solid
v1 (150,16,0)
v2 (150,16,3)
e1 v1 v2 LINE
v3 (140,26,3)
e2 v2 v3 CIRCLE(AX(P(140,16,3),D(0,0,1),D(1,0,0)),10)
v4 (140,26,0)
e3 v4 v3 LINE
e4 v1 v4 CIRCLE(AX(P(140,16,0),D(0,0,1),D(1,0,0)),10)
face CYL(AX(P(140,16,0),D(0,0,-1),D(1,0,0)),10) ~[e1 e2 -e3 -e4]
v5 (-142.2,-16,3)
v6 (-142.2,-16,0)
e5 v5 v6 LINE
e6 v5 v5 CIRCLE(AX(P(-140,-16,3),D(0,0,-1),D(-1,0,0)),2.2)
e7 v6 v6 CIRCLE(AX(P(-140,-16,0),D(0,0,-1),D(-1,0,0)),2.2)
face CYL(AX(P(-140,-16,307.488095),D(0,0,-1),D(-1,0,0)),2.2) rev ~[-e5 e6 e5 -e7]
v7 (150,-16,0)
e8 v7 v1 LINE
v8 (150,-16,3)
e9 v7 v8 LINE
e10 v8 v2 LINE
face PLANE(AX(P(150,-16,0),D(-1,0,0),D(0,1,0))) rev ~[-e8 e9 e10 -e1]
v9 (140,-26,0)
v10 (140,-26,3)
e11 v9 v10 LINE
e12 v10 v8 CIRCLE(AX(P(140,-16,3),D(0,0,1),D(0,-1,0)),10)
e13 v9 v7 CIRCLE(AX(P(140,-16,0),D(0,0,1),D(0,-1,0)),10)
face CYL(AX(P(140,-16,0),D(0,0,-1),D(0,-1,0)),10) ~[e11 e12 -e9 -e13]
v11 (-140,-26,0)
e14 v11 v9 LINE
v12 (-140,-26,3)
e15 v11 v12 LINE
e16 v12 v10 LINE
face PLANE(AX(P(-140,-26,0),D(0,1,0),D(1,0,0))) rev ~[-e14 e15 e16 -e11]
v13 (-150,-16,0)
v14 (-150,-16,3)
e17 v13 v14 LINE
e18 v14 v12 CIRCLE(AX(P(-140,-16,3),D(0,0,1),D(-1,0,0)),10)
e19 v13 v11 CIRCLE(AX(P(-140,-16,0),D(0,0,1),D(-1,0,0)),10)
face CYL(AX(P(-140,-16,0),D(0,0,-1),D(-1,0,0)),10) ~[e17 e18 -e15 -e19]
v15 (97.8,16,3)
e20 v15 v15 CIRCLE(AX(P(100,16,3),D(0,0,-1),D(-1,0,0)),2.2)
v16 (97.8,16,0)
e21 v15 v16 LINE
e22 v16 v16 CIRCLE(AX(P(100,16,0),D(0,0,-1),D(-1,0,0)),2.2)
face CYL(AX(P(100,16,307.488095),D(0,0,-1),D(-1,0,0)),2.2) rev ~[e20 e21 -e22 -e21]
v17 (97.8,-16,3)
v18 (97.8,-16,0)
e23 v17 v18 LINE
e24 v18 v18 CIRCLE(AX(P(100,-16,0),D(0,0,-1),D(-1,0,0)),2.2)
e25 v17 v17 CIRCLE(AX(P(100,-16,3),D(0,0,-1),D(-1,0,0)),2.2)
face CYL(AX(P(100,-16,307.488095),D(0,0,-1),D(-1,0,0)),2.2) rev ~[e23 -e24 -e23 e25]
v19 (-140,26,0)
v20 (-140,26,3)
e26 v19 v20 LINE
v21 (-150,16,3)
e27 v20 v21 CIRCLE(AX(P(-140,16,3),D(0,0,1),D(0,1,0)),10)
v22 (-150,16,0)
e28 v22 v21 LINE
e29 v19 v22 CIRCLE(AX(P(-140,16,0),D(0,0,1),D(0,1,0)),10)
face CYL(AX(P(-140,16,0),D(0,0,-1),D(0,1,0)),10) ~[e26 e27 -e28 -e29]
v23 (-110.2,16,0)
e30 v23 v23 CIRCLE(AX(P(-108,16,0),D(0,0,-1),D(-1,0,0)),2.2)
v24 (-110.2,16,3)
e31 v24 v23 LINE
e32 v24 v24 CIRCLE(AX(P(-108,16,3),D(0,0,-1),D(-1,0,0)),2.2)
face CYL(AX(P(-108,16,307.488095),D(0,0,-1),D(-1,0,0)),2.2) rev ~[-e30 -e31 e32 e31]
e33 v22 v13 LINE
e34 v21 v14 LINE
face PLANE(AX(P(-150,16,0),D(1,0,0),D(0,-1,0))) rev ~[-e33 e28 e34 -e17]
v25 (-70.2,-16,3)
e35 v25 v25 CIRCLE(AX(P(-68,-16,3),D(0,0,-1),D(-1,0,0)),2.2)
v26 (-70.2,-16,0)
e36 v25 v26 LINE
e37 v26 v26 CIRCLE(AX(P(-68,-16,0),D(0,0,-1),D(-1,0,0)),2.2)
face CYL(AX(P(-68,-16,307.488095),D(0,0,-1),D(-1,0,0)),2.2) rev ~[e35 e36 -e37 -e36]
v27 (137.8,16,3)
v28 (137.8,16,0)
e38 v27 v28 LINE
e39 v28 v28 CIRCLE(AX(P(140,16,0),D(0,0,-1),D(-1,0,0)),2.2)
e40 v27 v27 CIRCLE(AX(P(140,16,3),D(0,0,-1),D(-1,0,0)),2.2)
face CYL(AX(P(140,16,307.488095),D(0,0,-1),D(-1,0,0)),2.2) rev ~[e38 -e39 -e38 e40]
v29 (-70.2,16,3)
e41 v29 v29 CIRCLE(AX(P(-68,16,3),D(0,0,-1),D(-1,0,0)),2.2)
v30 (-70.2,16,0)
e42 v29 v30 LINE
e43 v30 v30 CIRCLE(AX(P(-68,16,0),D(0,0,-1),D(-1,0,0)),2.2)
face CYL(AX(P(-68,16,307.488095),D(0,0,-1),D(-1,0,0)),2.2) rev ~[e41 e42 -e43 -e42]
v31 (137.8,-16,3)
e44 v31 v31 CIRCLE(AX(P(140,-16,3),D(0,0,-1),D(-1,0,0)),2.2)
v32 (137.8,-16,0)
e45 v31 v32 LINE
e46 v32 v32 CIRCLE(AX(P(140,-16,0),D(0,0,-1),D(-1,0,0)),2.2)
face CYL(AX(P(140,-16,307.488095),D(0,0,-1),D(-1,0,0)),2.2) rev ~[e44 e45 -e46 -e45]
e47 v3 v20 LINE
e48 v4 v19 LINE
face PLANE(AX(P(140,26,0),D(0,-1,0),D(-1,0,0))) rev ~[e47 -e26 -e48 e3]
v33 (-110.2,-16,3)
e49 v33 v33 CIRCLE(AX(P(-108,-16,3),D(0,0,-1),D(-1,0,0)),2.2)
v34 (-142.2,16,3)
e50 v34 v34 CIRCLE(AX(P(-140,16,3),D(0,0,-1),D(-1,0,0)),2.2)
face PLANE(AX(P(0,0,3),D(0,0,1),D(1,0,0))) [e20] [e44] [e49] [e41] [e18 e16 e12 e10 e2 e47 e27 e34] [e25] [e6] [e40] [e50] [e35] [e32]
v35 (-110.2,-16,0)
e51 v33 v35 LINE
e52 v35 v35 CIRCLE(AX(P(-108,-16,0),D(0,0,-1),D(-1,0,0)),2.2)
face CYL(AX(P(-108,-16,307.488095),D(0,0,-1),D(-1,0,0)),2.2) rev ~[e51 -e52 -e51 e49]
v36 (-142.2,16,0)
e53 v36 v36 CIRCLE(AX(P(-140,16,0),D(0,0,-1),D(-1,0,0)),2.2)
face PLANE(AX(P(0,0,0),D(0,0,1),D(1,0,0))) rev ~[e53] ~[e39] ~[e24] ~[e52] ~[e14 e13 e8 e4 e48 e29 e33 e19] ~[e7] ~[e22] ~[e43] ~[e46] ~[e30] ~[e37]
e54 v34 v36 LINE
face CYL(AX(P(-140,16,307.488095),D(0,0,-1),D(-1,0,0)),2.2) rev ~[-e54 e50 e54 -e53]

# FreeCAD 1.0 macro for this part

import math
import FreeCAD as App
import Part
import Sketcher

V = App.Vector

doc = App.newDocument("Part")
body = doc.addObject("PartDesign::Body", "Body")

# Sketch on XY plane
sketch1 = body.newObject("Sketcher::SketchObject", "Sketch")
sketch1.AttachmentSupport = (doc.getObject("XY_Plane"), [""])
sketch1.MapMode = "FlatFace"
sketch1.addGeometry([
    Part.LineSegment(V(-140, -26, 0), V(140, -26, 0)),  # 0
    Part.ArcOfCircle(Part.Circle(V(140, -16, 0), V(0, 0, 1), 10), math.radians(-90), math.radians(0)),  # 1
    Part.LineSegment(V(150, -16, 0), V(150, 16, 0)),  # 2
    Part.ArcOfCircle(Part.Circle(V(140, 16, 0), V(0, 0, 1), 10), math.radians(0), math.radians(90)),  # 3
    Part.LineSegment(V(140, 26, 0), V(-140, 26, 0)),  # 4
    Part.ArcOfCircle(Part.Circle(V(-140, 16, 0), V(0, 0, 1), 10), math.radians(90), math.radians(180)),  # 5
    Part.LineSegment(V(-150, 16, 0), V(-150, -16, 0)),  # 6
    Part.ArcOfCircle(Part.Circle(V(-140, -16, 0), V(0, 0, 1), 10), math.radians(180), math.radians(270)),  # 7
], False)
sketch1.addConstraint([
    Sketcher.Constraint("Tangent", 0, 2, 1, 1),
    Sketcher.Constraint("Tangent", 1, 2, 2, 1),
    Sketcher.Constraint("Tangent", 2, 2, 3, 1),
    Sketcher.Constraint("Tangent", 3, 2, 4, 1),
    Sketcher.Constraint("Tangent", 4, 2, 5, 1),
    Sketcher.Constraint("Tangent", 5, 2, 6, 1),
    Sketcher.Constraint("Tangent", 6, 2, 7, 1),
    Sketcher.Constraint("Tangent", 7, 2, 0, 1),
    Sketcher.Constraint("Horizontal", 0),
    Sketcher.Constraint("Vertical", 2),
    Sketcher.Constraint("Horizontal", 4),
    Sketcher.Constraint("Vertical", 6),
    Sketcher.Constraint("Equal", 1, 3),
    Sketcher.Constraint("Equal", 3, 5),
    Sketcher.Constraint("Equal", 5, 7),
    Sketcher.Constraint("Symmetric", 1, 3, 5, 3, -1, 1),
    Sketcher.Constraint("Radius", 1, 10.0),
    Sketcher.Constraint("DistanceX", 0, 1, 0, 2, 280.0),
    Sketcher.Constraint("DistanceY", 2, 1, 2, 2, 32.0),
])
pad1 = body.newObject("PartDesign::Pad", "Pad")
pad1.Profile = sketch1
pad1.Length = 3

# Sketch on XY plane
sketch2 = body.newObject("Sketcher::SketchObject", "Sketch001")
sketch2.AttachmentSupport = (doc.getObject("XY_Plane"), [""])
sketch2.MapMode = "FlatFace"
sketch2.AttachmentOffset = App.Placement(V(0, 0, 3), App.Rotation())
sketch2.addGeometry([
    Part.Circle(V(-140, 16, 0), V(0, 0, 1), 2.2),  # 0
    Part.Circle(V(-140, -16, 0), V(0, 0, 1), 2.2),  # 1
    Part.Circle(V(-108, -16, 0), V(0, 0, 1), 2.2),  # 2
    Part.Circle(V(-108, 16, 0), V(0, 0, 1), 2.2),  # 3
    Part.Circle(V(-68, 16, 0), V(0, 0, 1), 2.2),  # 4
    Part.Circle(V(-68, -16, 0), V(0, 0, 1), 2.2),  # 5
    Part.Circle(V(140, 16, 0), V(0, 0, 1), 2.2),  # 6
    Part.Circle(V(100, 16, 0), V(0, 0, 1), 2.2),  # 7
    Part.Circle(V(100, -16, 0), V(0, 0, 1), 2.2),  # 8
    Part.Circle(V(140, -16, 0), V(0, 0, 1), 2.2),  # 9
], False)
sketch2.addConstraint([
    Sketcher.Constraint("Equal", 0, 1),
    Sketcher.Constraint("Equal", 1, 2),
    Sketcher.Constraint("Equal", 2, 3),
    Sketcher.Constraint("Equal", 3, 4),
    Sketcher.Constraint("Equal", 4, 5),
    Sketcher.Constraint("Equal", 5, 6),
    Sketcher.Constraint("Equal", 6, 7),
    Sketcher.Constraint("Equal", 7, 8),
    Sketcher.Constraint("Equal", 8, 9),
    Sketcher.Constraint("Symmetric", 1, 3, 6, 3, -1, 1),
    Sketcher.Constraint("Symmetric", 0, 3, 9, 3, -1, 1),
    Sketcher.Constraint("Symmetric", 0, 3, 6, 3, -2),
    Sketcher.Constraint("Symmetric", 2, 3, 3, 3, -1),
    Sketcher.Constraint("Symmetric", 4, 3, 5, 3, -1),
    Sketcher.Constraint("Symmetric", 7, 3, 8, 3, -1),
    Sketcher.Constraint("Horizontal", 1, 3, 2, 3),
    Sketcher.Constraint("Horizontal", 3, 3, 4, 3),
    Sketcher.Constraint("Horizontal", 6, 3, 7, 3),
    Sketcher.Constraint("Diameter", 0, 4.4),
    Sketcher.Constraint("DistanceX", 0, 3, -1, 1, 140.0),
    Sketcher.Constraint("DistanceY", -1, 1, 0, 3, 16.0),
    Sketcher.Constraint("DistanceX", 2, 3, -1, 1, 108.0),
    Sketcher.Constraint("DistanceX", 4, 3, -1, 1, 68.0),
    Sketcher.Constraint("DistanceX", -1, 1, 7, 3, 100.0),
])
doc.recompute()
hole = body.newObject("PartDesign::Hole", "Hole")
hole.Profile = sketch2
hole.ThreadType = "None"
hole.Diameter = 4.4
hole.DepthType = "ThroughAll"

doc.recompute()
